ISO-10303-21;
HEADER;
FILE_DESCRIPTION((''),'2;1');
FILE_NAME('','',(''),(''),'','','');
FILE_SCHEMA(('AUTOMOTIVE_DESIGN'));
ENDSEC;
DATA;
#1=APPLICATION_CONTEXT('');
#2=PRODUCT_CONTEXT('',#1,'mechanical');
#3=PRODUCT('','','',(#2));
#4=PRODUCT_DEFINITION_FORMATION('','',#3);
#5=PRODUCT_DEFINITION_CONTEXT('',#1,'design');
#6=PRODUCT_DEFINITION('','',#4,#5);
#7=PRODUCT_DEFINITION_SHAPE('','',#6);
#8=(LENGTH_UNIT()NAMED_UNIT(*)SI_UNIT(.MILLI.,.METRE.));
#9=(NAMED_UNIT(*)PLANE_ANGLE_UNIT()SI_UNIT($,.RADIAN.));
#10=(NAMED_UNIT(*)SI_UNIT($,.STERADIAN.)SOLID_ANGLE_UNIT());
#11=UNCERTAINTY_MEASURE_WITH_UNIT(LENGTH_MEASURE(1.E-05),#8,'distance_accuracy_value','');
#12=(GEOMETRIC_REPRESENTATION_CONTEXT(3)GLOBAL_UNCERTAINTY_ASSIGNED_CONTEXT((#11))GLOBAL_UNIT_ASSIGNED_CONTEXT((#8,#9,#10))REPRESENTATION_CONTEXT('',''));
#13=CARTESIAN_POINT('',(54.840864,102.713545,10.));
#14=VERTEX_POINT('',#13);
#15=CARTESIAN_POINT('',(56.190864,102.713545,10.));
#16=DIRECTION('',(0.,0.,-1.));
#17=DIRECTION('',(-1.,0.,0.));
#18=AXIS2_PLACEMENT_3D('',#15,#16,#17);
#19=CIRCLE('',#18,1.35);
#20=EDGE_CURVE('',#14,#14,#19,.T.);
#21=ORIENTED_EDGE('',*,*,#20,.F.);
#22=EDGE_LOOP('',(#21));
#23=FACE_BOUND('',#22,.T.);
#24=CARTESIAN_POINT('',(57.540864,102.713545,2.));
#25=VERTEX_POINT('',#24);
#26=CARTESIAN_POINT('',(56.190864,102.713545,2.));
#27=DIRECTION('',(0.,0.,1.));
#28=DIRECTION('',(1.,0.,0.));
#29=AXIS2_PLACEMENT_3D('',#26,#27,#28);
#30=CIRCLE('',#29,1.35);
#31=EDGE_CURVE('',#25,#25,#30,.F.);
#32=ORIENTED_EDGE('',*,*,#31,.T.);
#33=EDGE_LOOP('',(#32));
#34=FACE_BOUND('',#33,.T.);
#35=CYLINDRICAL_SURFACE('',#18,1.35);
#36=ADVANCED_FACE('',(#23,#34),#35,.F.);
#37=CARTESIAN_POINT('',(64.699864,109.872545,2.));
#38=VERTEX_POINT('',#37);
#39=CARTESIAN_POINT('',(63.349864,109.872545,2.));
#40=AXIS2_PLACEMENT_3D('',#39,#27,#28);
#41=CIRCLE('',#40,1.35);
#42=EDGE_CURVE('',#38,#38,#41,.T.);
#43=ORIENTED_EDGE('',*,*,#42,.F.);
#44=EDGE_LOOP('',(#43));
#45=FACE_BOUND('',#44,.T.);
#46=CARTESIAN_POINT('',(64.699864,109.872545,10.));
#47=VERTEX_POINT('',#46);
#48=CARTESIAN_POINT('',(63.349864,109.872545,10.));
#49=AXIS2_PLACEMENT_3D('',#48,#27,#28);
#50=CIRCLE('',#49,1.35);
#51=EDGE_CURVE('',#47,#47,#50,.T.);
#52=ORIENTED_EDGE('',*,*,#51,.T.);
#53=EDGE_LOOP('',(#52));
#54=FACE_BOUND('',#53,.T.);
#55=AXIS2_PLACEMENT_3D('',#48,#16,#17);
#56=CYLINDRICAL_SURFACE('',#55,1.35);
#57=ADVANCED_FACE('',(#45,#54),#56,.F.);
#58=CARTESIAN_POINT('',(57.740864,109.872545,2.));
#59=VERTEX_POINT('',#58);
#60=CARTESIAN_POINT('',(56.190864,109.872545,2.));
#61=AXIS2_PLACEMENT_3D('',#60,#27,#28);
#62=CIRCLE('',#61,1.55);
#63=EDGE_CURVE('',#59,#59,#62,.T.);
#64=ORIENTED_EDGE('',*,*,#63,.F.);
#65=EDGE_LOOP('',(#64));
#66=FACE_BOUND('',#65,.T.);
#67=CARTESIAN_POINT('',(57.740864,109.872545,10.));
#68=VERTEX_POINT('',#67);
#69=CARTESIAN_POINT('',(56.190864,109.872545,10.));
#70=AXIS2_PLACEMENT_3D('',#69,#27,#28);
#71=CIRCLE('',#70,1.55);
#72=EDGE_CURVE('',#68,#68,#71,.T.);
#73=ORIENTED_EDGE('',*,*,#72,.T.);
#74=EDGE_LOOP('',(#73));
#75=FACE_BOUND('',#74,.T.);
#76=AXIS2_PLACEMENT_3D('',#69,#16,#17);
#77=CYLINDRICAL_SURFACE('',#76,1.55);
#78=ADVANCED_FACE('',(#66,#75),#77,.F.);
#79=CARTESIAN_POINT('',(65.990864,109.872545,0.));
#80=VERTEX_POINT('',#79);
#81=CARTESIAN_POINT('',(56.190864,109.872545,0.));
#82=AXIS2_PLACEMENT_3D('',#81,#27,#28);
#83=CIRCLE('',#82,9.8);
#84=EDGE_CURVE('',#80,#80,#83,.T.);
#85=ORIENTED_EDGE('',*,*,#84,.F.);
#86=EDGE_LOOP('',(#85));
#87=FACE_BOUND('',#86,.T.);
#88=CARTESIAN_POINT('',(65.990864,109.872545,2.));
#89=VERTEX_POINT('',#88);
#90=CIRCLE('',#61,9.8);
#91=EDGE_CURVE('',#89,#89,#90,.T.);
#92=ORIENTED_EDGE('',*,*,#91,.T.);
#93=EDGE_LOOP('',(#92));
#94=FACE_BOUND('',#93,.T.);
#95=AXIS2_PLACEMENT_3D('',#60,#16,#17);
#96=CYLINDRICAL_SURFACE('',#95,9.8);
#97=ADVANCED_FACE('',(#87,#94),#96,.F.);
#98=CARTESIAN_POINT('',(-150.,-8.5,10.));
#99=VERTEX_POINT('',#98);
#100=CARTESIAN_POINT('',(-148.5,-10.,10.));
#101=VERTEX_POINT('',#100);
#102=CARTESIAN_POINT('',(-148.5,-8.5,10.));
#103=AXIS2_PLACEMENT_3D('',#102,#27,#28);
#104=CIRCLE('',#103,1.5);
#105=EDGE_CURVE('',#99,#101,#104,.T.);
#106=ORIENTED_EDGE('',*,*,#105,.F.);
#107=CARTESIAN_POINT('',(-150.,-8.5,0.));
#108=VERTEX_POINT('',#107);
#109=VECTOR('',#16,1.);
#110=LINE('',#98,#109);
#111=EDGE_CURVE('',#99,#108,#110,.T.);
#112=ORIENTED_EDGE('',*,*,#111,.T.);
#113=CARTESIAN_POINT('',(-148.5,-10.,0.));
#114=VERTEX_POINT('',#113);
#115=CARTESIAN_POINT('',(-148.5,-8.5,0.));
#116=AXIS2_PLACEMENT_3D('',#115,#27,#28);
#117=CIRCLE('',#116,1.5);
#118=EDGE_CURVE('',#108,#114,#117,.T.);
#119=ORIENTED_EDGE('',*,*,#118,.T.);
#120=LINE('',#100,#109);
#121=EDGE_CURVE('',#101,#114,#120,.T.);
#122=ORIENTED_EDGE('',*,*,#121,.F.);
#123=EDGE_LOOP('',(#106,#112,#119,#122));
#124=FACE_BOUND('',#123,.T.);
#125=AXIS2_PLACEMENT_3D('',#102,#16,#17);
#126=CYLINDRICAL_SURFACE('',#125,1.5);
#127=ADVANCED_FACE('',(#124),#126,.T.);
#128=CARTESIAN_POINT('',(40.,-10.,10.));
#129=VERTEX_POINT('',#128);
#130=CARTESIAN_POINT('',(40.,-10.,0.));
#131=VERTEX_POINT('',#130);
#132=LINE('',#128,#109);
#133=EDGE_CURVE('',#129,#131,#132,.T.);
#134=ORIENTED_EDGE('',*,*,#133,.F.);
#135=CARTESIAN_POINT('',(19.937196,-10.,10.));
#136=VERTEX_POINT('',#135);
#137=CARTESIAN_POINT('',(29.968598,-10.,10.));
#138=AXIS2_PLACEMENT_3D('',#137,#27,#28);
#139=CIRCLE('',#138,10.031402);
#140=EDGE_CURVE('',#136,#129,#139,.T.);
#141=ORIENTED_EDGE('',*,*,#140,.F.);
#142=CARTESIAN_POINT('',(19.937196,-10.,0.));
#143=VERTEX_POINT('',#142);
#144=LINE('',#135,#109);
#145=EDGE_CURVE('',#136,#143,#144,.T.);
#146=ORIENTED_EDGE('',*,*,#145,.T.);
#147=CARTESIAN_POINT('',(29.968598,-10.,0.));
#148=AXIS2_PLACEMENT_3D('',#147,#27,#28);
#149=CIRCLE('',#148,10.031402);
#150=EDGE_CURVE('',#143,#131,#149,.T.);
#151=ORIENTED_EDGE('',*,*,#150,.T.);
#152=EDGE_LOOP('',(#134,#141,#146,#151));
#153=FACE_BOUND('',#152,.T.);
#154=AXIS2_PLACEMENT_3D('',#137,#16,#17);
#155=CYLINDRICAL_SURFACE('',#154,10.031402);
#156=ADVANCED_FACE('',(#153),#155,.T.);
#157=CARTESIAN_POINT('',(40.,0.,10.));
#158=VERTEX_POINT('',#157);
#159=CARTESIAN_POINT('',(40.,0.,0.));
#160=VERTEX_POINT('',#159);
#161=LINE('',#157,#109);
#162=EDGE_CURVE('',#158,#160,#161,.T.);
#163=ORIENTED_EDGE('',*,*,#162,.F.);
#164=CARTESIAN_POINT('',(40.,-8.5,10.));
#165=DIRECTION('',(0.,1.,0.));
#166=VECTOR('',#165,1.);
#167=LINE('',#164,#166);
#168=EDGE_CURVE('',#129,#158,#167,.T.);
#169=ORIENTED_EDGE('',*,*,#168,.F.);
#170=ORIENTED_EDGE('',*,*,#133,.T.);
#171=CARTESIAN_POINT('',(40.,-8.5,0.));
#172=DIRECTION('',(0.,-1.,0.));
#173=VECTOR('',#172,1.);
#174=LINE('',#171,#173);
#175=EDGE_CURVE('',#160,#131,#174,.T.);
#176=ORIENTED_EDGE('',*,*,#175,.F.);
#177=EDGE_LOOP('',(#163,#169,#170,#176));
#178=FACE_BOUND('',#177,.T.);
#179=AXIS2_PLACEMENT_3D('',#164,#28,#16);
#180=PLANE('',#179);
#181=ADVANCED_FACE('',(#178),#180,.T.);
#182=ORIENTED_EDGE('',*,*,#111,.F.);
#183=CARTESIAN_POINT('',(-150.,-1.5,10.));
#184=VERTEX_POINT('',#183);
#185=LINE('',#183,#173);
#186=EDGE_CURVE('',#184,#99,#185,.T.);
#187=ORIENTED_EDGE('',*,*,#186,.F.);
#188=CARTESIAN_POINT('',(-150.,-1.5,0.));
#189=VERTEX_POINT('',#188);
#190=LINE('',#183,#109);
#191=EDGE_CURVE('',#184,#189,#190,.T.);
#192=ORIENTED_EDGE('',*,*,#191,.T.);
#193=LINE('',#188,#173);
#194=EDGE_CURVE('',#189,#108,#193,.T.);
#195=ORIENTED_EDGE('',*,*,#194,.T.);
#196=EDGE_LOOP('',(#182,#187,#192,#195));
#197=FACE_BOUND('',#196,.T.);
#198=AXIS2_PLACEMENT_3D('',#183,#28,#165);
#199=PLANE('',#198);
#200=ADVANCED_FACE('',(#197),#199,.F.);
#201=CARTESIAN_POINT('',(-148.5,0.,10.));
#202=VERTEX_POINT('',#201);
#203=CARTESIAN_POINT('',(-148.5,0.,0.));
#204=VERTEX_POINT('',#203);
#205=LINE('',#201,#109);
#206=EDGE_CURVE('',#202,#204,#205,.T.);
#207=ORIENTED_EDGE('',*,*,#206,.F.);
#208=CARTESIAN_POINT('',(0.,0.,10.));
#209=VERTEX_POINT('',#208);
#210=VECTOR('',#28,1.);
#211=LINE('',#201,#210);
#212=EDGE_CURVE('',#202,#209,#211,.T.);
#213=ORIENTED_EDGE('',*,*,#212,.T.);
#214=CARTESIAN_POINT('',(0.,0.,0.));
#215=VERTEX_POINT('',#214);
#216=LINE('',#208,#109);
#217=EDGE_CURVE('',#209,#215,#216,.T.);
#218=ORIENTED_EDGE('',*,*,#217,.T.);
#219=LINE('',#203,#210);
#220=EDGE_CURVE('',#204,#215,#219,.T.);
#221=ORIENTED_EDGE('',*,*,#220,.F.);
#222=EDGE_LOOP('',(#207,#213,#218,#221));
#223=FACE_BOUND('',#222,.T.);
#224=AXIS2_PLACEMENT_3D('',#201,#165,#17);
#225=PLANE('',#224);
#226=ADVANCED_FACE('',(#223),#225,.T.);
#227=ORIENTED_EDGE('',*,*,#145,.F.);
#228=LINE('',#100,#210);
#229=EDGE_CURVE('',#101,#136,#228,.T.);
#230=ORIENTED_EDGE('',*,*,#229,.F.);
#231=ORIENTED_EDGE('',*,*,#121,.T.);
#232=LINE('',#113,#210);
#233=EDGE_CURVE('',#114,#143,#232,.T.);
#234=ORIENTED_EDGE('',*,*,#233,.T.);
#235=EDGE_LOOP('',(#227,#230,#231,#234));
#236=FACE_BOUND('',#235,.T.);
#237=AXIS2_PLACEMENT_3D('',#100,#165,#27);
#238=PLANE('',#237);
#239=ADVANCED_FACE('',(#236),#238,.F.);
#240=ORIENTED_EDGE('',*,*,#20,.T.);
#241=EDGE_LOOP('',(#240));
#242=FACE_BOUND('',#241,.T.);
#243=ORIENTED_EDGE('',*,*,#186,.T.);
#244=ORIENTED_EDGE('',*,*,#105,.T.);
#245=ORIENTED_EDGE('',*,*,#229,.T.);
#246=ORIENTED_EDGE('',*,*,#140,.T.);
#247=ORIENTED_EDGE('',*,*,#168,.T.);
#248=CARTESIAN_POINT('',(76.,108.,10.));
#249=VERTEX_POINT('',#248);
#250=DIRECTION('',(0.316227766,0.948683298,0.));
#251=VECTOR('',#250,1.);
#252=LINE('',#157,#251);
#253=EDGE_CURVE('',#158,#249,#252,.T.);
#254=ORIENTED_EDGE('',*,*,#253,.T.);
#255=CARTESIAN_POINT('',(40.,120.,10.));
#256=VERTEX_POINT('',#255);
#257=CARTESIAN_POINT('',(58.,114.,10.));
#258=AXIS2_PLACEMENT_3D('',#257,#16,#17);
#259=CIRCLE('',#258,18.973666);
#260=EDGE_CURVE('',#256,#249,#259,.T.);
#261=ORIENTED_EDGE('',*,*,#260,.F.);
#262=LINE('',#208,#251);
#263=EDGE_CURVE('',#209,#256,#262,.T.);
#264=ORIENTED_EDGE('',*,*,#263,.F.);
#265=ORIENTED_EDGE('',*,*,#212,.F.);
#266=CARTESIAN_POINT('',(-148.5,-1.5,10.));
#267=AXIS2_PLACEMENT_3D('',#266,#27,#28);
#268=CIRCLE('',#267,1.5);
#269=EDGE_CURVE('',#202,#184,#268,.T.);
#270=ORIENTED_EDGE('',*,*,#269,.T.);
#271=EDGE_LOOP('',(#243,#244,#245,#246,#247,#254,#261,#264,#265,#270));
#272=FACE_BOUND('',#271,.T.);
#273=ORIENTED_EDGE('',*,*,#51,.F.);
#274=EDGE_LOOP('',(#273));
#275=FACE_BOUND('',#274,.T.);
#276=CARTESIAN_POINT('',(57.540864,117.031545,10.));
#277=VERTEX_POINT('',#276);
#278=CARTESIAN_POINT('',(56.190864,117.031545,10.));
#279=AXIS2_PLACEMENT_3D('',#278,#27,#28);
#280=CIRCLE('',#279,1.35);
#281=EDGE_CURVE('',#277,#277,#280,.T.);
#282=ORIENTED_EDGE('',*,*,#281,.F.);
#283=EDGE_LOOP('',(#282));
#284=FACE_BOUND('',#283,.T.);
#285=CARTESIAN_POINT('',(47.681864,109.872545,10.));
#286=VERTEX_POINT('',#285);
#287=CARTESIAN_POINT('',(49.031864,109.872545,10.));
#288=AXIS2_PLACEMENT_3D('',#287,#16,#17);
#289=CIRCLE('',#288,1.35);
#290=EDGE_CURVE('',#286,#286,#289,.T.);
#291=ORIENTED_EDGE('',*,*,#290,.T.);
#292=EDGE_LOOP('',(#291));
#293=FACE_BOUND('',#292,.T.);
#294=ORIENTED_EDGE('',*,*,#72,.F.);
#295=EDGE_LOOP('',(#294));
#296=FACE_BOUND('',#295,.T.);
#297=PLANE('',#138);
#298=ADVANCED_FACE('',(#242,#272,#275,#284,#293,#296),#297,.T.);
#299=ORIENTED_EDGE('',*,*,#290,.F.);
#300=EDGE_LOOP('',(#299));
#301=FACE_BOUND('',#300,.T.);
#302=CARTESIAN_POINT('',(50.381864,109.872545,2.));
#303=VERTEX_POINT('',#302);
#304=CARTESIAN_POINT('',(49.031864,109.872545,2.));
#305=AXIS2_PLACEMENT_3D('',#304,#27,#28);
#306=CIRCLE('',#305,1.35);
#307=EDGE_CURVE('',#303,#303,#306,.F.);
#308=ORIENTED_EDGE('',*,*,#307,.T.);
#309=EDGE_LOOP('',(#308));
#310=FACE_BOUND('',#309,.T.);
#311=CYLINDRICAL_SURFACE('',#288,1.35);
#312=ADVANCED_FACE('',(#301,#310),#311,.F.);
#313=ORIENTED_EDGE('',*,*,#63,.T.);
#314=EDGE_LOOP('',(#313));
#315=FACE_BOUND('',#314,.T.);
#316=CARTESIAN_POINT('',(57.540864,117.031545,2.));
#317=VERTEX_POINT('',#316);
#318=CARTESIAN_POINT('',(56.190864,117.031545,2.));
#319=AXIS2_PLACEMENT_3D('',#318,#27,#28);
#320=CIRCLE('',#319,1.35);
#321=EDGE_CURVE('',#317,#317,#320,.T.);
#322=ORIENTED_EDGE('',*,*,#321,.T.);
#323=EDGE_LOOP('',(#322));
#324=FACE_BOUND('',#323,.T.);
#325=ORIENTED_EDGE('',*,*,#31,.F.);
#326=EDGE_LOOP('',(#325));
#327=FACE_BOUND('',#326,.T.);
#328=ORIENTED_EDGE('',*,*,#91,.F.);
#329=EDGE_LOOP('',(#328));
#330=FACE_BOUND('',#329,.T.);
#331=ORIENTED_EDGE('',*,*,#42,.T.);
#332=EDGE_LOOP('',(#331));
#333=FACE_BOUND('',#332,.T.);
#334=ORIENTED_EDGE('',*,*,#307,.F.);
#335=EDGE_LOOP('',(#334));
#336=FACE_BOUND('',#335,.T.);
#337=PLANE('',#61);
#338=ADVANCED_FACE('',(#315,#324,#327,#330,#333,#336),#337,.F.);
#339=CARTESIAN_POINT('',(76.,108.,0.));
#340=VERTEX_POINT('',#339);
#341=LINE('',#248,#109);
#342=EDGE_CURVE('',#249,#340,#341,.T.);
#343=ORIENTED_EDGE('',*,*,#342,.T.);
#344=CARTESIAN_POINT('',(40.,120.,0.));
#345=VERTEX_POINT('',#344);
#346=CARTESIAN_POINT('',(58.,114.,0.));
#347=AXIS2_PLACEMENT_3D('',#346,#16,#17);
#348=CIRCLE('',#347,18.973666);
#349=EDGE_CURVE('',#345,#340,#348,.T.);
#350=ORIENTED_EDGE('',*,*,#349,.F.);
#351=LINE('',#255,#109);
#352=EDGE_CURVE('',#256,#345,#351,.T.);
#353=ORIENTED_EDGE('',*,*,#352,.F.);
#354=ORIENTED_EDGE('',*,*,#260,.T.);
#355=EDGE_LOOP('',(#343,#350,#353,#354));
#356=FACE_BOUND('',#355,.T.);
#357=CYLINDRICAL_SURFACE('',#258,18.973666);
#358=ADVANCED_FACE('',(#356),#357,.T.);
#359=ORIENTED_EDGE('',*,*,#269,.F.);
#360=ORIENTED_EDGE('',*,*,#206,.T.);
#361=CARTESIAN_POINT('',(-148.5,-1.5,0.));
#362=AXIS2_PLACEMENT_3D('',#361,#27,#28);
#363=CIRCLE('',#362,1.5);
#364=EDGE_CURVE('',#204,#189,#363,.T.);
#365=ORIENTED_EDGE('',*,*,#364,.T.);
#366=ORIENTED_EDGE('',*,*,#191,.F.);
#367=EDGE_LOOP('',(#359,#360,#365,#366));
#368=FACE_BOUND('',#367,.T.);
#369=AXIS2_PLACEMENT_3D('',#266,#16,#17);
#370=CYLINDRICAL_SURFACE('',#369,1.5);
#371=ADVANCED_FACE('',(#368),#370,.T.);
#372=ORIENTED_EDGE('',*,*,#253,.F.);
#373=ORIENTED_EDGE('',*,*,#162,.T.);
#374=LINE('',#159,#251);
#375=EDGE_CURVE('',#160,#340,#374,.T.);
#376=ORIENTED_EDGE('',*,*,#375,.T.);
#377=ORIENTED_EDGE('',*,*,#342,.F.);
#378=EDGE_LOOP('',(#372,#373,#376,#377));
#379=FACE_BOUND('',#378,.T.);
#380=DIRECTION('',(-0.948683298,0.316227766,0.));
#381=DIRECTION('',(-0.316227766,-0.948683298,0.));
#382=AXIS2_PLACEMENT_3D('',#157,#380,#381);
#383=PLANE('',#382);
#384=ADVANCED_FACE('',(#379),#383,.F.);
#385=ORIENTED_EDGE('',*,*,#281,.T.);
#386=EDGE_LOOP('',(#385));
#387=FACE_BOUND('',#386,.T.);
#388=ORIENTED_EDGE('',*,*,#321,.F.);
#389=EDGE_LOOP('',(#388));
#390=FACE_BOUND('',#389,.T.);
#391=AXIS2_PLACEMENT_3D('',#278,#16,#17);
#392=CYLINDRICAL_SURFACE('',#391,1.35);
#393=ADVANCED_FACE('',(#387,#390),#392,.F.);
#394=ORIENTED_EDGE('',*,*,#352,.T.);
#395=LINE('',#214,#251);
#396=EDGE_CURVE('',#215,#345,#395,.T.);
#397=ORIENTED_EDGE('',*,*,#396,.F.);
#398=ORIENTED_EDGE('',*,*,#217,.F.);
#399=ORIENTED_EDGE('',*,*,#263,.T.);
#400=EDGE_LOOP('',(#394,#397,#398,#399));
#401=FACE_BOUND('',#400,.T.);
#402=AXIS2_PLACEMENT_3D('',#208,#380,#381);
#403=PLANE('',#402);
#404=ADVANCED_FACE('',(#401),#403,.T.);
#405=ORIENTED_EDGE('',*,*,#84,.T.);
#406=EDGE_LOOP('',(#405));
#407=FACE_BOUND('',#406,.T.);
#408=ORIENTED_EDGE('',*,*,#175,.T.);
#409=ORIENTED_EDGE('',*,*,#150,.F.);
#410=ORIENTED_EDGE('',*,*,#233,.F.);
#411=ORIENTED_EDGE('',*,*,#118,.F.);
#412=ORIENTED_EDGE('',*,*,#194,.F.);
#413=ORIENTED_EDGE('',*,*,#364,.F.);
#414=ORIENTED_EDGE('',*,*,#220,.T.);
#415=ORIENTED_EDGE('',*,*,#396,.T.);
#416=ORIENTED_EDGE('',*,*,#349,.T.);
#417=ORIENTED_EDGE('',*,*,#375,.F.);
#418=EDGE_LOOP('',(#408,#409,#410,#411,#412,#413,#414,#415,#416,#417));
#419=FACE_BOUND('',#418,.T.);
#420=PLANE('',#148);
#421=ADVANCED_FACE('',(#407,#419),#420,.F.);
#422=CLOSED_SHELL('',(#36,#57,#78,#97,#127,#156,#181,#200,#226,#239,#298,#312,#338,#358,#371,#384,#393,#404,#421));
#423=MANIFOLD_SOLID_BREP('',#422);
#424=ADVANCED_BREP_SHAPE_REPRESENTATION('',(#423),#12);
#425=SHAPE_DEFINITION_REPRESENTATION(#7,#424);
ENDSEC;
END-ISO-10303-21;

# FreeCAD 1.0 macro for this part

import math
import FreeCAD as App
import Part
import Sketcher

doc = App.newDocument("Part")
body = doc.addObject("PartDesign::Body", "Body")

sketch1 = doc.addObject("Sketcher::SketchObject", "Sketch")
body.addObject(sketch1)
sketch1.AttachmentSupport = (doc.XY_Plane, [""])
sketch1.MapMode = "FlatFace"
sketch1.addGeometry(Part.LineSegment(App.Vector(-150, -1.5, 0), App.Vector(-150, -8.5, 0)), False)
sketch1.addGeometry(Part.ArcOfCircle(Part.Circle(App.Vector(-148.5, -8.5, 0), App.Vector(0, 0, 1), 1.5), math.radians(180), math.radians(270)), False)
sketch1.addGeometry(Part.LineSegment(App.Vector(-148.5, -10, 0), App.Vector(19.937196, -10, 0)), False)
sketch1.addGeometry(Part.ArcOfCircle(Part.Circle(App.Vector(29.968598, -10, 0), App.Vector(0, 0, 1), 10.031402), math.radians(180), math.radians(360)), False)
sketch1.addGeometry(Part.LineSegment(App.Vector(40, -10, 0), App.Vector(40, 0, 0)), False)
sketch1.addGeometry(Part.LineSegment(App.Vector(40, 0, 0), App.Vector(-148.5, 0, 0)), False)
sketch1.addGeometry(Part.ArcOfCircle(Part.Circle(App.Vector(-148.5, -1.5, 0), App.Vector(0, 0, 1), 1.5), math.radians(90), math.radians(180)), False)
sketch1.addConstraint(Sketcher.Constraint("Tangent", 0, 2, 1, 1))
sketch1.addConstraint(Sketcher.Constraint("Tangent", 1, 2, 2, 1))
sketch1.addConstraint(Sketcher.Constraint("Coincident", 2, 2, 3, 1))
sketch1.addConstraint(Sketcher.Constraint("Tangent", 3, 2, 4, 1))
sketch1.addConstraint(Sketcher.Constraint("Coincident", 4, 2, 5, 1))
sketch1.addConstraint(Sketcher.Constraint("Tangent", 5, 2, 6, 1))
sketch1.addConstraint(Sketcher.Constraint("Tangent", 6, 2, 0, 1))
sketch1.addConstraint(Sketcher.Constraint("Vertical", 0))
sketch1.addConstraint(Sketcher.Constraint("Horizontal", 2))
sketch1.addConstraint(Sketcher.Constraint("Vertical", 4))
sketch1.addConstraint(Sketcher.Constraint("Horizontal", 5))
sketch1.addConstraint(Sketcher.Constraint("Equal", 1, 6))
sketch1.addConstraint(Sketcher.Constraint("PointOnObject", 4, 2, -1))
sketch1.addConstraint(Sketcher.Constraint("Horizontal", 3, 3, 1, 2))
sketch1.addConstraint(Sketcher.Constraint("Radius", 1, 1.5))
sketch1.addConstraint(Sketcher.Constraint("DistanceY", 0, 2, 0, 1, 7.0))
sketch1.addConstraint(Sketcher.Constraint("DistanceX", 5, 2, 5, 1, 188.5))
sketch1.addConstraint(Sketcher.Constraint("DistanceX", 0, 2, -1, 1, 150.0))
sketch1.addConstraint(Sketcher.Constraint("Radius", 3, 10.031402))
pad1 = doc.addObject("PartDesign::Pad", "Pad")
body.addObject(pad1)
pad1.Profile = sketch1
pad1.Length = 10

sketch2 = doc.addObject("Sketcher::SketchObject", "Sketch001")
body.addObject(sketch2)
sketch2.AttachmentSupport = (doc.XY_Plane, [""])
sketch2.MapMode = "FlatFace"
sketch2.addGeometry(Part.LineSegment(App.Vector(40, 120, 0), App.Vector(0, 0, 0)), False)
sketch2.addGeometry(Part.LineSegment(App.Vector(0, 0, 0), App.Vector(40, 0, 0)), False)
sketch2.addGeometry(Part.LineSegment(App.Vector(40, 0, 0), App.Vector(76, 108, 0)), False)
sketch2.addGeometry(Part.ArcOfCircle(Part.Circle(App.Vector(58, 114, 0), App.Vector(0, 0, 1), 18.973666), math.radians(-18.434949), math.radians(161.565051)), False)
sketch2.addConstraint(Sketcher.Constraint("Coincident", 0, 2, 1, 1))
sketch2.addConstraint(Sketcher.Constraint("Coincident", 1, 2, 2, 1))
sketch2.addConstraint(Sketcher.Constraint("Tangent", 2, 2, 3, 1))
sketch2.addConstraint(Sketcher.Constraint("Tangent", 3, 2, 0, 1))
sketch2.addConstraint(Sketcher.Constraint("Horizontal", 1))
sketch2.addConstraint(Sketcher.Constraint("Coincident", 0, 2, -1, 1))
sketch2.addConstraint(Sketcher.Constraint("Parallel", 0, 2))
sketch2.addConstraint(Sketcher.Constraint("Vertical", 1, 2, 3, 2))
sketch2.addConstraint(Sketcher.Constraint("DistanceX", 1, 1, 1, 2, 40.0))
sketch2.addConstraint(Sketcher.Constraint("DistanceX", -1, 1, 3, 3, 58.0))
pad2 = doc.addObject("PartDesign::Pad", "Pad001")
body.addObject(pad2)
pad2.Profile = sketch2
pad2.Length = 10

sketch3 = doc.addObject("Sketcher::SketchObject", "Sketch002")
body.addObject(sketch3)
sketch3.AttachmentSupport = (doc.XY_Plane, [""])
sketch3.MapMode = "FlatFace"
sketch3.addGeometry(Part.Circle(App.Vector(63.349864, 109.872545, 0), App.Vector(0, 0, 1), 1.35), False)
sketch3.addGeometry(Part.Circle(App.Vector(56.190864, 117.031545, 0), App.Vector(0, 0, 1), 1.35), False)
sketch3.addGeometry(Part.Circle(App.Vector(56.190864, 102.713545, 0), App.Vector(0, 0, 1), 1.35), False)
sketch3.addGeometry(Part.Circle(App.Vector(49.031864, 109.872545, 0), App.Vector(0, 0, 1), 1.35), False)
sketch3.addConstraint(Sketcher.Constraint("Equal", 0, 1))
sketch3.addConstraint(Sketcher.Constraint("Equal", 1, 2))
sketch3.addConstraint(Sketcher.Constraint("Equal", 2, 3))
sketch3.addConstraint(Sketcher.Constraint("Horizontal", 0, 3, 3, 3))
sketch3.addConstraint(Sketcher.Constraint("Vertical", 1, 3, 2, 3))
sketch3.addConstraint(Sketcher.Constraint("Diameter", 0, 2.7))
sketch3.addConstraint(Sketcher.Constraint("DistanceX", 1, 3, 0, 3, 7.159))
sketch3.addConstraint(Sketcher.Constraint("DistanceY", 0, 3, 1, 3, 7.159))
sketch3.addConstraint(Sketcher.Constraint("DistanceY", 2, 3, 0, 3, 7.159))
sketch3.addConstraint(Sketcher.Constraint("DistanceX", 3, 3, 1, 3, 7.159))
sketch3.addConstraint(Sketcher.Constraint("DistanceX", -1, 1, 0, 3, 63.349864))
sketch3.addConstraint(Sketcher.Constraint("DistanceY", -1, 1, 0, 3, 109.872545))
pocket1 = doc.addObject("PartDesign::Pocket", "Pocket")
body.addObject(pocket1)
pocket1.Profile = sketch3
pocket1.Length = 10
pocket1.Reversed = True

sketch4 = doc.addObject("Sketcher::SketchObject", "Sketch003")
body.addObject(sketch4)
sketch4.AttachmentSupport = (doc.XY_Plane, [""])
sketch4.MapMode = "FlatFace"
sketch4.addGeometry(Part.Circle(App.Vector(56.190864, 109.872545, 0), App.Vector(0, 0, 1), 1.55), False)
sketch4.addConstraint(Sketcher.Constraint("Diameter", 0, 3.1))
sketch4.addConstraint(Sketcher.Constraint("DistanceX", -1, 1, 0, 3, 56.190864))
sketch4.addConstraint(Sketcher.Constraint("DistanceY", -1, 1, 0, 3, 109.872545))
pocket2 = doc.addObject("PartDesign::Pocket", "Pocket001")
body.addObject(pocket2)
pocket2.Profile = sketch4
pocket2.Length = 10
pocket2.Reversed = True

sketch5 = doc.addObject("Sketcher::SketchObject", "Sketch004")
body.addObject(sketch5)
sketch5.AttachmentSupport = (doc.XY_Plane, [""])
sketch5.MapMode = "FlatFace"
sketch5.addGeometry(Part.Circle(App.Vector(56.190864, 109.872545, 0), App.Vector(0, 0, 1), 9.8), False)
sketch5.addConstraint(Sketcher.Constraint("Diameter", 0, 19.6))
sketch5.addConstraint(Sketcher.Constraint("DistanceX", -1, 1, 0, 3, 56.190864))
sketch5.addConstraint(Sketcher.Constraint("DistanceY", -1, 1, 0, 3, 109.872545))
pocket3 = doc.addObject("PartDesign::Pocket", "Pocket002")
body.addObject(pocket3)
pocket3.Profile = sketch5
pocket3.Length = 2
pocket3.Reversed = True

doc.recompute()
